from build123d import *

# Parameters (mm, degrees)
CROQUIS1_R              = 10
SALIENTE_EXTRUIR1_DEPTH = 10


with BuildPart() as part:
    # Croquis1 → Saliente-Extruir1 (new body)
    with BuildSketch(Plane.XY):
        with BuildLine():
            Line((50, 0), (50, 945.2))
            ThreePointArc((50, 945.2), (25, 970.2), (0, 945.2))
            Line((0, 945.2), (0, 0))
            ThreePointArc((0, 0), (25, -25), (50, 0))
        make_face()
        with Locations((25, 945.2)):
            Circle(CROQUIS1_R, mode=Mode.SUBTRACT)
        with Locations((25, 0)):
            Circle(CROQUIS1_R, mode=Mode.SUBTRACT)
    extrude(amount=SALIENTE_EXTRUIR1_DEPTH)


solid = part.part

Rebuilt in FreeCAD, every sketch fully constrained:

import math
import FreeCAD as App
import Part
import Sketcher

V = App.Vector
Q = App.Units.Quantity

doc = App.newDocument("Part")
body = doc.addObject("PartDesign::Body", "Body")

# Sketch on XY plane
sketch1 = body.newObject("Sketcher::SketchObject", "Sketch")
sketch1.AttachmentSupport = (doc.getObject("XY_Plane"), [""])
sketch1.MapMode = "FlatFace"
sketch1.addGeometry(Part.LineSegment(V(50, 0, 0), V(50, 945, 0)), False)
sketch1.addGeometry(Part.ArcOfCircle(Part.Circle(V(25, 945, 0), V(0, 0, 1), 25), math.radians(0), math.radians(180)), False)
sketch1.addGeometry(Part.LineSegment(V(0, 945, 0), V(0, 0, 0)), False)
sketch1.addGeometry(Part.ArcOfCircle(Part.Circle(V(25, 0, 0), V(0, 0, 1), 25), math.radians(180), math.radians(360)), False)
sketch1.addGeometry(Part.Circle(V(25, 0, 0), V(0, 0, 1), 10), False)
sketch1.addGeometry(Part.Circle(V(25, 945, 0), V(0, 0, 1), 10), False)
sketch1.addConstraint(Sketcher.Constraint("Tangent", 0, 2, 1, 1))
sketch1.addConstraint(Sketcher.Constraint("Tangent", 1, 2, 2, 1))
sketch1.addConstraint(Sketcher.Constraint("Tangent", 2, 2, 3, 1))
sketch1.addConstraint(Sketcher.Constraint("Tangent", 3, 2, 0, 1))
sketch1.addConstraint(Sketcher.Constraint("Vertical", 0))
sketch1.addConstraint(Sketcher.Constraint("Vertical", 2))
sketch1.addConstraint(Sketcher.Constraint("Coincident", 2, 2, -1, 1))
sketch1.addConstraint(Sketcher.Constraint("Coincident", 4, 3, 3, 3))
sketch1.addConstraint(Sketcher.Constraint("Coincident", 5, 3, 1, 3))
sketch1.addConstraint(Sketcher.Constraint("Equal", 4, 5))
sketch1.addConstraint(Sketcher.Constraint("Diameter", 4, Q("20 mm")))
sketch1.addConstraint(Sketcher.Constraint("Radius", 1, Q("25 mm")))
sketch1.addConstraint(Sketcher.Constraint("DistanceY", 0, 1, 0, 2, Q("945.2 mm")))
pad1 = body.newObject("PartDesign::Pad", "Pad")
pad1.Profile = sketch1
pad1.Length = 10

doc.recompute()
